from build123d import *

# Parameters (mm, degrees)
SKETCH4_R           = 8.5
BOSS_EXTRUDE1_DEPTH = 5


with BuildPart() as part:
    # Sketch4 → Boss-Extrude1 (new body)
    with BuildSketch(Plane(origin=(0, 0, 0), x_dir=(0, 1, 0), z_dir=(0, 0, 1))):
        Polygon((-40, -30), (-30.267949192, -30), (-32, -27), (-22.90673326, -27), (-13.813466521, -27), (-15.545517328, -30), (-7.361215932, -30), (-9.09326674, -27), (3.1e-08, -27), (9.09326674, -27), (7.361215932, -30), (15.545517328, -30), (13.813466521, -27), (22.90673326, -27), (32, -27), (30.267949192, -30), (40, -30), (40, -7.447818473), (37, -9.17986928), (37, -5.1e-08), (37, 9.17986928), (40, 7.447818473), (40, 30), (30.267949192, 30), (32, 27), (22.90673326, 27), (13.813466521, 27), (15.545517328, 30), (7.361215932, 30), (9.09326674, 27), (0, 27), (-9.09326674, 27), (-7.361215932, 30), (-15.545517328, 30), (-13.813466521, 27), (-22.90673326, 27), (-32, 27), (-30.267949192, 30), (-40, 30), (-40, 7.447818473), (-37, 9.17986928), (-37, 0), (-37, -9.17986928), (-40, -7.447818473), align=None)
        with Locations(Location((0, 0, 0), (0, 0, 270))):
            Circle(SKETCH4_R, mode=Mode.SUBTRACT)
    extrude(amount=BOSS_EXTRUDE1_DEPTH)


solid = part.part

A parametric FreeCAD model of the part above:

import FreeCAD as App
import Part
import Sketcher

V = App.Vector
Q = App.Units.Quantity

doc = App.newDocument("Part")
body = doc.addObject("PartDesign::Body", "Body")

sketch1 = body.newObject("Sketcher::SketchObject", "Sketch")
sketch1.AttachmentSupport = (doc.getObject("XY_Plane"), [""])
sketch1.MapMode = "FlatFace"
sketch1.addGeometry(Part.LineSegment(V(30, -40, 0), V(30, -30.3, 0)), False)
sketch1.addGeometry(Part.LineSegment(V(30, -30.3, 0), V(27, -32, 0)), False)
sketch1.addGeometry(Part.LineSegment(V(27, -32, 0), V(27, -13.8, 0)), False)
sketch1.addGeometry(Part.LineSegment(V(27, -13.8, 0), V(30, -15.5, 0)), False)
sketch1.addGeometry(Part.LineSegment(V(30, -15.5, 0), V(30, -7.4, 0)), False)
sketch1.addGeometry(Part.LineSegment(V(30, -7.4, 0), V(27, -9.1, 0)), False)
sketch1.addGeometry(Part.LineSegment(V(27, -9.1, 0), V(27, 9.1, 0)), False)
sketch1.addGeometry(Part.LineSegment(V(27, 9.1, 0), V(30, 7.4, 0)), False)
sketch1.addGeometry(Part.LineSegment(V(30, 7.4, 0), V(30, 15.5, 0)), False)
sketch1.addGeometry(Part.LineSegment(V(30, 15.5, 0), V(27, 13.8, 0)), False)
sketch1.addGeometry(Part.LineSegment(V(27, 13.8, 0), V(27, 32, 0)), False)
sketch1.addGeometry(Part.LineSegment(V(27, 32, 0), V(30, 30.3, 0)), False)
sketch1.addGeometry(Part.LineSegment(V(30, 30.3, 0), V(30, 40, 0)), False)
sketch1.addGeometry(Part.LineSegment(V(30, 40, 0), V(7.4, 40, 0)), False)
sketch1.addGeometry(Part.LineSegment(V(7.4, 40, 0), V(9.2, 37, 0)), False)
sketch1.addGeometry(Part.LineSegment(V(9.2, 37, 0), V(-9.2, 37, 0)), False)
sketch1.addGeometry(Part.LineSegment(V(-9.2, 37, 0), V(-7.4, 40, 0)), False)
sketch1.addGeometry(Part.LineSegment(V(-7.4, 40, 0), V(-30, 40, 0)), False)
sketch1.addGeometry(Part.LineSegment(V(-30, 40, 0), V(-30, 30.3, 0)), False)
sketch1.addGeometry(Part.LineSegment(V(-30, 30.3, 0), V(-27, 32, 0)), False)
sketch1.addGeometry(Part.LineSegment(V(-27, 32, 0), V(-27, 13.8, 0)), False)
sketch1.addGeometry(Part.LineSegment(V(-27, 13.8, 0), V(-30, 15.5, 0)), False)
sketch1.addGeometry(Part.LineSegment(V(-30, 15.5, 0), V(-30, 7.4, 0)), False)
sketch1.addGeometry(Part.LineSegment(V(-30, 7.4, 0), V(-27, 9.1, 0)), False)
sketch1.addGeometry(Part.LineSegment(V(-27, 9.1, 0), V(-27, -9.1, 0)), False)
sketch1.addGeometry(Part.LineSegment(V(-27, -9.1, 0), V(-30, -7.4, 0)), False)
sketch1.addGeometry(Part.LineSegment(V(-30, -7.4, 0), V(-30, -15.5, 0)), False)
sketch1.addGeometry(Part.LineSegment(V(-30, -15.5, 0), V(-27, -13.8, 0)), False)
sketch1.addGeometry(Part.LineSegment(V(-27, -13.8, 0), V(-27, -32, 0)), False)
sketch1.addGeometry(Part.LineSegment(V(-27, -32, 0), V(-30, -30.3, 0)), False)
sketch1.addGeometry(Part.LineSegment(V(-30, -30.3, 0), V(-30, -40, 0)), False)
sketch1.addGeometry(Part.LineSegment(V(-30, -40, 0), V(-7.4, -40, 0)), False)
sketch1.addGeometry(Part.LineSegment(V(-7.4, -40, 0), V(-9.2, -37, 0)), False)
sketch1.addGeometry(Part.LineSegment(V(-9.2, -37, 0), V(9.2, -37, 0)), False)
sketch1.addGeometry(Part.LineSegment(V(9.2, -37, 0), V(7.4, -40, 0)), False)
sketch1.addGeometry(Part.LineSegment(V(7.4, -40, 0), V(30, -40, 0)), False)
sketch1.addGeometry(Part.Circle(V(0, 0, 0), V(0, 0, 1), 8.5), False)
sketch1.addConstraint(Sketcher.Constraint("Coincident", 0, 2, 1, 1))
sketch1.addConstraint(Sketcher.Constraint("Coincident", 1, 2, 2, 1))
sketch1.addConstraint(Sketcher.Constraint("Coincident", 2, 2, 3, 1))
sketch1.addConstraint(Sketcher.Constraint("Coincident", 3, 2, 4, 1))
sketch1.addConstraint(Sketcher.Constraint("Coincident", 4, 2, 5, 1))
sketch1.addConstraint(Sketcher.Constraint("Coincident", 5, 2, 6, 1))
sketch1.addConstraint(Sketcher.Constraint("Coincident", 6, 2, 7, 1))
sketch1.addConstraint(Sketcher.Constraint("Coincident", 7, 2, 8, 1))
sketch1.addConstraint(Sketcher.Constraint("Coincident", 8, 2, 9, 1))
sketch1.addConstraint(Sketcher.Constraint("Coincident", 9, 2, 10, 1))
sketch1.addConstraint(Sketcher.Constraint("Coincident", 10, 2, 11, 1))
sketch1.addConstraint(Sketcher.Constraint("Coincident", 11, 2, 12, 1))
sketch1.addConstraint(Sketcher.Constraint("Coincident", 12, 2, 13, 1))
sketch1.addConstraint(Sketcher.Constraint("Coincident", 13, 2, 14, 1))
sketch1.addConstraint(Sketcher.Constraint("Coincident", 14, 2, 15, 1))
sketch1.addConstraint(Sketcher.Constraint("Coincident", 15, 2, 16, 1))
sketch1.addConstraint(Sketcher.Constraint("Coincident", 16, 2, 17, 1))
sketch1.addConstraint(Sketcher.Constraint("Coincident", 17, 2, 18, 1))
sketch1.addConstraint(Sketcher.Constraint("Coincident", 18, 2, 19, 1))
sketch1.addConstraint(Sketcher.Constraint("Coincident", 19, 2, 20, 1))
sketch1.addConstraint(Sketcher.Constraint("Coincident", 20, 2, 21, 1))
sketch1.addConstraint(Sketcher.Constraint("Coincident", 21, 2, 22, 1))
sketch1.addConstraint(Sketcher.Constraint("Coincident", 22, 2, 23, 1))
sketch1.addConstraint(Sketcher.Constraint("Coincident", 23, 2, 24, 1))
sketch1.addConstraint(Sketcher.Constraint("Coincident", 24, 2, 25, 1))
sketch1.addConstraint(Sketcher.Constraint("Coincident", 25, 2, 26, 1))
sketch1.addConstraint(Sketcher.Constraint("Coincident", 26, 2, 27, 1))
sketch1.addConstraint(Sketcher.Constraint("Coincident", 27, 2, 28, 1))
sketch1.addConstraint(Sketcher.Constraint("Coincident", 28, 2, 29, 1))
sketch1.addConstraint(Sketcher.Constraint("Coincident", 29, 2, 30, 1))
sketch1.addConstraint(Sketcher.Constraint("Coincident", 30, 2, 31, 1))
sketch1.addConstraint(Sketcher.Constraint("Coincident", 31, 2, 32, 1))
sketch1.addConstraint(Sketcher.Constraint("Coincident", 32, 2, 33, 1))
sketch1.addConstraint(Sketcher.Constraint("Coincident", 33, 2, 34, 1))
sketch1.addConstraint(Sketcher.Constraint("Coincident", 34, 2, 35, 1))
sketch1.addConstraint(Sketcher.Constraint("Coincident", 35, 2, 0, 1))
sketch1.addConstraint(Sketcher.Constraint("Vertical", 0))
sketch1.addConstraint(Sketcher.Constraint("Vertical", 2))
sketch1.addConstraint(Sketcher.Constraint("Vertical", 4))
sketch1.addConstraint(Sketcher.Constraint("Vertical", 6))
sketch1.addConstraint(Sketcher.Constraint("Vertical", 8))
sketch1.addConstraint(Sketcher.Constraint("Vertical", 10))
sketch1.addConstraint(Sketcher.Constraint("Vertical", 12))
sketch1.addConstraint(Sketcher.Constraint("Horizontal", 13))
sketch1.addConstraint(Sketcher.Constraint("Horizontal", 15))
sketch1.addConstraint(Sketcher.Constraint("Horizontal", 17))
sketch1.addConstraint(Sketcher.Constraint("Vertical", 18))
sketch1.addConstraint(Sketcher.Constraint("Vertical", 20))
sketch1.addConstraint(Sketcher.Constraint("Vertical", 22))
sketch1.addConstraint(Sketcher.Constraint("Vertical", 24))
sketch1.addConstraint(Sketcher.Constraint("Vertical", 26))
sketch1.addConstraint(Sketcher.Constraint("Vertical", 28))
sketch1.addConstraint(Sketcher.Constraint("Vertical", 30))
sketch1.addConstraint(Sketcher.Constraint("Horizontal", 31))
sketch1.addConstraint(Sketcher.Constraint("Horizontal", 33))
sketch1.addConstraint(Sketcher.Constraint("Horizontal", 35))
sketch1.addConstraint(Sketcher.Constraint("Coincident", 36, 3, -1, 1))
sketch1.addConstraint(Sketcher.Constraint("Symmetric", 0, 2, 18, 2, -1, 1))
sketch1.addConstraint(Sketcher.Constraint("Symmetric", 1, 2, 19, 2, -1, 1))
sketch1.addConstraint(Sketcher.Constraint("Symmetric", 3, 2, 21, 2, -1, 1))
sketch1.addConstraint(Sketcher.Constraint("Symmetric", 5, 2, 23, 2, -1, 1))
sketch1.addConstraint(Sketcher.Constraint("Symmetric", 7, 2, 25, 2, -1, 1))
sketch1.addConstraint(Sketcher.Constraint("Symmetric", 9, 2, 27, 2, -1, 1))
sketch1.addConstraint(Sketcher.Constraint("Symmetric", 11, 2, 29, 2, -1, 1))
sketch1.addConstraint(Sketcher.Constraint("Symmetric", 13, 2, 31, 2, -1, 1))
sketch1.addConstraint(Sketcher.Constraint("Symmetric", 14, 2, 32, 2, -1, 1))
sketch1.addConstraint(Sketcher.Constraint("Symmetric", 16, 2, 34, 2, -1, 1))
sketch1.addConstraint(Sketcher.Constraint("Symmetric", 13, 2, 16, 2, -2))
sketch1.addConstraint(Sketcher.Constraint("Symmetric", 11, 2, 18, 2, -2))
sketch1.addConstraint(Sketcher.Constraint("Symmetric", 10, 2, 19, 2, -2))
sketch1.addConstraint(Sketcher.Constraint("Symmetric", 8, 2, 21, 2, -2))
sketch1.addConstraint(Sketcher.Constraint("Parallel", 1, 5))
sketch1.addConstraint(Sketcher.Constraint("Parallel", 3, 7))
sketch1.addConstraint(Sketcher.Constraint("Parallel", 5, 9))
sketch1.addConstraint(Sketcher.Constraint("Parallel", 7, 11))
sketch1.addConstraint(Sketcher.Constraint("Perpendicular", 9, 14))
sketch1.addConstraint(Sketcher.Constraint("Perpendicular", 11, 16))
sketch1.addConstraint(Sketcher.Constraint("Perpendicular", 16, 21))
sketch1.addConstraint(Sketcher.Constraint("Parallel", 19, 23))
sketch1.addConstraint(Sketcher.Constraint("Parallel", 21, 25))
sketch1.addConstraint(Sketcher.Constraint("Parallel", 23, 27))
sketch1.addConstraint(Sketcher.Constraint("Parallel", 25, 29))
sketch1.addConstraint(Sketcher.Constraint("Perpendicular", 29, 34))
sketch1.addConstraint(Sketcher.Constraint("Horizontal", 7, 2, 22, 2))
sketch1.addConstraint(Sketcher.Constraint("Vertical", 0, 2, 3, 2))
sketch1.addConstraint(Sketcher.Constraint("Vertical", 2, 2, 5, 2))
sketch1.addConstraint(Sketcher.Constraint("Equal", 2, 6))
sketch1.addConstraint(Sketcher.Constraint("Equal", 11, 14))
sketch1.addConstraint(Sketcher.Constraint("Diameter", 36, Q("17 mm")))
sketch1.addConstraint(Sketcher.Constraint("Angle", 1, Q("-150 deg")))
sketch1.addConstraint(Sketcher.Constraint("DistanceX", -1, 1, 0, 2, Q("30 mm")))
sketch1.addConstraint(Sketcher.Constraint("DistanceX", -1, 1, 1, 2, Q("27 mm")))
sketch1.addConstraint(Sketcher.Constraint("DistanceY", 1, 2, -1, 1, Q("32 mm")))
sketch1.addConstraint(Sketcher.Constraint("DistanceY", -1, 1, 12, 2, Q("40 mm")))
sketch1.addConstraint(Sketcher.Constraint("DistanceY", 4, 1, 4, 2, Q("8.184301 mm")))
sketch1.addConstraint(Sketcher.Constraint("DistanceX", 13, 2, 13, 1, Q("22.552182 mm")))
pad1 = body.newObject("PartDesign::Pad", "Pad")
pad1.Profile = sketch1
pad1.Length = 5

doc.recompute()
